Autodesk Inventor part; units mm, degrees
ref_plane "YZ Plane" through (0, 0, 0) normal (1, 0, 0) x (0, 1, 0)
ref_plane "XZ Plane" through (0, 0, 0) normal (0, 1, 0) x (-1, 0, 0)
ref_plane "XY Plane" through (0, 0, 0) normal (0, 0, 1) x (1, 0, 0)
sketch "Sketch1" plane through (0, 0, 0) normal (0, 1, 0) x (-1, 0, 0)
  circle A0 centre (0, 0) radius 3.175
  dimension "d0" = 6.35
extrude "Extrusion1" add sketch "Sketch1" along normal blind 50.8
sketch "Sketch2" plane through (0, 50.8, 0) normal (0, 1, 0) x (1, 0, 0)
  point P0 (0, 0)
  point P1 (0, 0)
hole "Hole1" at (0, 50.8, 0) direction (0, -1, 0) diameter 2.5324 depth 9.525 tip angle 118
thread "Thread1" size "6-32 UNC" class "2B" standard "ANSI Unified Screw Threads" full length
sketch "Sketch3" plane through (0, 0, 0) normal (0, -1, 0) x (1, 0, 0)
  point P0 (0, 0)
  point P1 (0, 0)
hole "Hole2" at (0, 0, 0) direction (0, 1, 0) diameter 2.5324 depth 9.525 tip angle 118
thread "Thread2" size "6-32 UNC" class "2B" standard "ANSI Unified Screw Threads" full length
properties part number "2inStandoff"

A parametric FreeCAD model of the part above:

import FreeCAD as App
import Part
import Sketcher
from FreeCAD import Vector
Q = App.Units.Quantity

doc = App.newDocument("Part")
body = doc.addObject("PartDesign::Body", "Body")

sketch1 = body.newObject("Sketcher::SketchObject", "Sketch")
sketch1.AttachmentSupport = (doc.getObject("XZ_Plane"), [""])
sketch1.MapMode = "FlatFace"
sketch1.addGeometry(Part.Circle(Vector(0, 0, 0), Vector(0, 0, 1), 3.2), False)
sketch1.addConstraint(Sketcher.Constraint("Coincident", 0, 3, -1, 1))
sketch1.addConstraint(Sketcher.Constraint("Diameter", 0, Q("0.25 in")))
pad1 = body.newObject("PartDesign::Pad", "Pad")
pad1.Profile = sketch1
pad1.Length = Q("2 in")
pad1.Reversed = True

sketch2 = body.newObject("Sketcher::SketchObject", "Sketch001")
sketch2.AttachmentSupport = (doc.getObject("XZ_Plane"), [""])
sketch2.MapMode = "FlatFace"
sketch2.AttachmentOffset = App.Placement(Vector(0, 0, -2 * 25.4), App.Rotation())
sketch2.addGeometry(Part.Circle(Vector(0, 0, 0), Vector(0, 0, 1), 1.3), False)
sketch2.addConstraint(Sketcher.Constraint("Coincident", 0, 3, -1, 1))
sketch2.addConstraint(Sketcher.Constraint("Diameter", 0, Q("0.0997 in")))
doc.recompute()
hole = body.newObject("PartDesign::Hole", "Hole")
hole.Profile = sketch2
hole.ThreadType = "None"
hole.Diameter = Q("0.0997008 in")
hole.DepthType = "Dimension"
hole.Depth = Q("0.375 in")
hole.DrillPoint = "Angled"
hole.DrillPointAngle = 118
hole.Reversed = True

sketch3 = body.newObject("Sketcher::SketchObject", "Sketch002")
sketch3.AttachmentSupport = (doc.getObject("XZ_Plane"), [""])
sketch3.MapMode = "FlatFace"
sketch3.addGeometry(Part.Circle(Vector(0, 0, 0), Vector(0, 0, 1), 1.3), False)
sketch3.addConstraint(Sketcher.Constraint("Coincident", 0, 3, -1, 1))
sketch3.addConstraint(Sketcher.Constraint("Diameter", 0, Q("0.0997 in")))
doc.recompute()
hole2 = body.newObject("PartDesign::Hole", "Hole001")
hole2.Profile = sketch3
hole2.ThreadType = "None"
hole2.Diameter = Q("0.0997008 in")
hole2.DepthType = "Dimension"
hole2.Depth = Q("0.375 in")
hole2.DrillPoint = "Angled"
hole2.DrillPointAngle = 118

doc.recompute()
